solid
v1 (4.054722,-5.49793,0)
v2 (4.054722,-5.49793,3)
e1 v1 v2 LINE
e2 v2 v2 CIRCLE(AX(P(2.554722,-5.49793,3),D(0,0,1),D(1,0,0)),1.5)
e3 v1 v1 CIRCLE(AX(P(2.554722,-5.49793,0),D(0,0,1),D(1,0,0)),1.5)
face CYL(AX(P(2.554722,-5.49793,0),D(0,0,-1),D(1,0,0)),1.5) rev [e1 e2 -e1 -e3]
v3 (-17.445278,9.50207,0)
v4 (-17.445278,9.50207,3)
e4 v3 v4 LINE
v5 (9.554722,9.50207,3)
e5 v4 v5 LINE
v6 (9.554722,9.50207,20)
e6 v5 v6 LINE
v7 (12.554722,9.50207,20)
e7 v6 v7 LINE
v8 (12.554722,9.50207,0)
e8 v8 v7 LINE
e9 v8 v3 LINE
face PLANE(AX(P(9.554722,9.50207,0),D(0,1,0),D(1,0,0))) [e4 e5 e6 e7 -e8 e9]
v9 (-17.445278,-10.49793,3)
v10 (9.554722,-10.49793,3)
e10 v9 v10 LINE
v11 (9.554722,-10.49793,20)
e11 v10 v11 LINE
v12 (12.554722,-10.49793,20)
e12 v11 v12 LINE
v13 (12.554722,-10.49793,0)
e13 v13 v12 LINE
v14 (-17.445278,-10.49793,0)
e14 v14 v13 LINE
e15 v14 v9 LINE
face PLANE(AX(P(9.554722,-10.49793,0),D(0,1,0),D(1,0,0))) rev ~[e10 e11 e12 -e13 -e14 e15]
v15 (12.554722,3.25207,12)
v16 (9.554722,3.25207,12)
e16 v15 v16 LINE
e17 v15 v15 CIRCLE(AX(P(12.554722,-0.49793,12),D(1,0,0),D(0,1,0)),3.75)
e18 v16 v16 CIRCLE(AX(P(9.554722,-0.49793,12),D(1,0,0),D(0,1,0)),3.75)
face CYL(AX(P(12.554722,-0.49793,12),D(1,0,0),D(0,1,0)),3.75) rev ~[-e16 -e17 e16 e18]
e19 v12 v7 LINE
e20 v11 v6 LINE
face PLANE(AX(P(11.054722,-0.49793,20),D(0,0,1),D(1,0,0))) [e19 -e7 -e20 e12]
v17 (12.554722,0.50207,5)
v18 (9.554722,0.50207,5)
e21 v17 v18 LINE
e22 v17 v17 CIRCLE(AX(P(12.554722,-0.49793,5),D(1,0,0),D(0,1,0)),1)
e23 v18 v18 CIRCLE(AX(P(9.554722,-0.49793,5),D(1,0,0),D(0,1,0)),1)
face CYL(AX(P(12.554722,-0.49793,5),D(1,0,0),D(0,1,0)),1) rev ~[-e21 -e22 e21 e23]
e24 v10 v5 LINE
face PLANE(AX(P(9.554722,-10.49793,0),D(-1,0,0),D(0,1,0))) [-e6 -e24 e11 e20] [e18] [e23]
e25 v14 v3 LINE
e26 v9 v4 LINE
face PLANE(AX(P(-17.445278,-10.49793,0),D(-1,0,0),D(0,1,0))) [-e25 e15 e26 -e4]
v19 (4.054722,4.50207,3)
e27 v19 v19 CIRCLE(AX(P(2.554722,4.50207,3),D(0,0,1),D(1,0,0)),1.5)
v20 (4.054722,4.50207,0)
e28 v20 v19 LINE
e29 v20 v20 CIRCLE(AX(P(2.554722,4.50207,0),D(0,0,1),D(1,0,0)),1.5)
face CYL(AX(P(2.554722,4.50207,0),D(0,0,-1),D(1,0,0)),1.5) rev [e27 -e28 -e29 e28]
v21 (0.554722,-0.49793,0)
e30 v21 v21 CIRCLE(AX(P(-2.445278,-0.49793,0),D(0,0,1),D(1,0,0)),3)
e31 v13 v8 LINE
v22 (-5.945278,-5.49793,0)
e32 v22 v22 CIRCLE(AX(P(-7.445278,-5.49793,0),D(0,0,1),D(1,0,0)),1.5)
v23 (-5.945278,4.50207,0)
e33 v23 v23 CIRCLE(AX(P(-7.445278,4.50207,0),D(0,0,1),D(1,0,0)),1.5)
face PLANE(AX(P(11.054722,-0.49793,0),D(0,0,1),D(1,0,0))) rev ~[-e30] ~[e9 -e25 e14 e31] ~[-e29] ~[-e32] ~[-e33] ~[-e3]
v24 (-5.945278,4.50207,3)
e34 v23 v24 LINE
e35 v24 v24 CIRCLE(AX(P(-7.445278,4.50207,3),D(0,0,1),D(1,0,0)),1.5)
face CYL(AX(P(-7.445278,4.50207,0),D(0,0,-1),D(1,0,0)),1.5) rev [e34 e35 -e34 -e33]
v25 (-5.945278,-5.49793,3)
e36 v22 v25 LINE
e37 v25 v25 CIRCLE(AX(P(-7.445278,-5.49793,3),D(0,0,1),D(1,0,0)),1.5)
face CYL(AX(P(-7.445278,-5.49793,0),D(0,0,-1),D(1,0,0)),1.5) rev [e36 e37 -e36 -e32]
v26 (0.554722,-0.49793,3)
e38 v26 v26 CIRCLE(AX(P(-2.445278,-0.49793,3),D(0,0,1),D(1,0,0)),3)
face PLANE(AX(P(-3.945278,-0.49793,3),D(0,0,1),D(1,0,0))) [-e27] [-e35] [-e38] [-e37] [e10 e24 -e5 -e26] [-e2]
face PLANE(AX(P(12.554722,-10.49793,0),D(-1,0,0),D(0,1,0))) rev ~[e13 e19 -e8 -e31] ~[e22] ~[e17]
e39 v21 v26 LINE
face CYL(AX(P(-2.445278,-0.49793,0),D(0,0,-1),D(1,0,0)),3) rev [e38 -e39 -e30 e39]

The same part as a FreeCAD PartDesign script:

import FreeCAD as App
import Part
import Sketcher
Q = App.Units.Quantity


def add_polygon(sketch, points):
    """Adds a closed chain of lines whose ends are joined by coincident constraints."""
    first, n = sketch.GeometryCount, len(points)
    for a, b in zip(points, points[1:] + points[:1]):
        sketch.addGeometry(Part.LineSegment(App.Vector(*a, 0), App.Vector(*b, 0)), False)
    for i in range(n):
        sketch.addConstraint(Sketcher.Constraint("Coincident", first + i, 2, first + (i + 1) % n, 1))

doc = App.newDocument("Part")
body = doc.addObject("PartDesign::Body", "Body")

sketch1 = body.newObject("Sketcher::SketchObject", "Sketch")
sketch1.AttachmentSupport = (doc.getObject("XY_Plane"), [""])
sketch1.MapMode = "FlatFace"
add_polygon(sketch1, [(-17.445278, 9.50207), (-17.445278, -10.49793), (9.554722, -10.49793), (9.554722, 9.50207)])
sketch1.addGeometry(Part.Circle(App.Vector(-7.445278, -5.49793, 0), App.Vector(0, 0, 1), 1.5), False)
sketch1.addGeometry(Part.Circle(App.Vector(2.554722, -5.49793, 0), App.Vector(0, 0, 1), 1.5), False)
sketch1.addGeometry(Part.Circle(App.Vector(-7.445278, 4.50207, 0), App.Vector(0, 0, 1), 1.5), False)
sketch1.addGeometry(Part.Circle(App.Vector(-2.445278, -0.49793, 0), App.Vector(0, 0, 1), 3), False)
sketch1.addGeometry(Part.Circle(App.Vector(2.554722, 4.50207, 0), App.Vector(0, 0, 1), 1.5), False)
sketch1.addConstraint([
    Sketcher.Constraint("Vertical", 0),
    Sketcher.Constraint("Horizontal", 1),
    Sketcher.Constraint("Vertical", 2),
    Sketcher.Constraint("Horizontal", 3),
    Sketcher.Constraint("Equal", 4, 5),
    Sketcher.Constraint("Equal", 5, 6),
    Sketcher.Constraint("Equal", 6, 8),
    Sketcher.Constraint("Horizontal", 4, 3, 5, 3),
    Sketcher.Constraint("Horizontal", 6, 3, 8, 3),
    Sketcher.Constraint("Vertical", 4, 3, 6, 3),
    Sketcher.Constraint("Vertical", 5, 3, 8, 3),
    Sketcher.Constraint("Diameter", 4, Q("3 mm")),
    Sketcher.Constraint("Diameter", 7, Q("6 mm")),
    Sketcher.Constraint("DistanceX", 1, 1, 1, 2, Q("27 mm")),
    Sketcher.Constraint("DistanceY", 0, 2, 0, 1, Q("20 mm")),
    Sketcher.Constraint("DistanceX", 4, 3, 5, 3, Q("10 mm")),
    Sketcher.Constraint("DistanceY", 4, 3, 6, 3, Q("10 mm")),
    Sketcher.Constraint("DistanceX", 4, 3, 7, 3, Q("5 mm")),
    Sketcher.Constraint("DistanceY", 4, 3, 7, 3, Q("5 mm")),
    Sketcher.Constraint("DistanceX", 0, 2, 4, 3, Q("10 mm")),
    Sketcher.Constraint("DistanceY", 0, 2, 4, 3, Q("5 mm")),
    Sketcher.Constraint("DistanceY", 4, 3, -1, 1, Q("5.49793 mm")),
    Sketcher.Constraint("DistanceX", -1, 1, 5, 3, Q("2.554722 mm")),
])
pad1 = body.newObject("PartDesign::Pad", "Pad")
pad1.Profile = sketch1
pad1.Length = 3

sketch2 = body.newObject("Sketcher::SketchObject", "Sketch001")
sketch2.AttachmentSupport = (doc.getObject("XY_Plane"), [""])
sketch2.MapMode = "FlatFace"
add_polygon(sketch2, [(9.554722, 9.50207), (9.554722, -10.49793), (12.554722, -10.49793), (12.554722, 9.50207)])
sketch2.addConstraint([
    Sketcher.Constraint("Vertical", 0),
    Sketcher.Constraint("Horizontal", 1),
    Sketcher.Constraint("Vertical", 2),
    Sketcher.Constraint("Horizontal", 3),
    Sketcher.Constraint("DistanceX", 1, 1, 1, 2, Q("3 mm")),
    Sketcher.Constraint("DistanceY", 0, 2, 0, 1, Q("20 mm")),
    Sketcher.Constraint("DistanceY", 0, 2, -1, 1, Q("10.49793 mm")),
    Sketcher.Constraint("DistanceX", -1, 1, 0, 2, Q("9.554722 mm")),
])
pad2 = body.newObject("PartDesign::Pad", "Pad001")
pad2.Profile = sketch2
pad2.Length = 20

sketch3 = body.newObject("Sketcher::SketchObject", "Sketch002")
sketch3.AttachmentSupport = (doc.getObject("YZ_Plane"), [""])
sketch3.MapMode = "FlatFace"
sketch3.AttachmentOffset = App.Placement(App.Vector(0, 0, 12.554722), App.Rotation())
sketch3.addGeometry([
    Part.Circle(App.Vector(-0.49793, 12, 0), App.Vector(0, 0, 1), 3.75),
    Part.Circle(App.Vector(-0.49793, 5, 0), App.Vector(0, 0, 1), 1),
    Part.Circle(App.Vector(-0.49793, -2.5, 0), App.Vector(0, 0, 1), 1),
], False)
sketch3.addConstraint([
    Sketcher.Constraint("Equal", 1, 2),
    Sketcher.Constraint("Vertical", 0, 3, 1, 3),
    Sketcher.Constraint("Vertical", 1, 3, 2, 3),
    Sketcher.Constraint("Diameter", 1, Q("2 mm")),
    Sketcher.Constraint("Diameter", 0, Q("7.5 mm")),
    Sketcher.Constraint("DistanceY", -1, 1, 0, 3, Q("12 mm")),
    Sketcher.Constraint("DistanceY", -1, 1, 1, 3, Q("5 mm")),
    Sketcher.Constraint("DistanceY", 2, 3, -1, 1, Q("2.5 mm")),
    Sketcher.Constraint("DistanceX", 0, 3, -1, 1, Q("0.49793 mm")),
])
pocket1 = body.newObject("PartDesign::Pocket", "Pocket")
pocket1.Profile = sketch3
pocket1.Length = 3

doc.recompute()
